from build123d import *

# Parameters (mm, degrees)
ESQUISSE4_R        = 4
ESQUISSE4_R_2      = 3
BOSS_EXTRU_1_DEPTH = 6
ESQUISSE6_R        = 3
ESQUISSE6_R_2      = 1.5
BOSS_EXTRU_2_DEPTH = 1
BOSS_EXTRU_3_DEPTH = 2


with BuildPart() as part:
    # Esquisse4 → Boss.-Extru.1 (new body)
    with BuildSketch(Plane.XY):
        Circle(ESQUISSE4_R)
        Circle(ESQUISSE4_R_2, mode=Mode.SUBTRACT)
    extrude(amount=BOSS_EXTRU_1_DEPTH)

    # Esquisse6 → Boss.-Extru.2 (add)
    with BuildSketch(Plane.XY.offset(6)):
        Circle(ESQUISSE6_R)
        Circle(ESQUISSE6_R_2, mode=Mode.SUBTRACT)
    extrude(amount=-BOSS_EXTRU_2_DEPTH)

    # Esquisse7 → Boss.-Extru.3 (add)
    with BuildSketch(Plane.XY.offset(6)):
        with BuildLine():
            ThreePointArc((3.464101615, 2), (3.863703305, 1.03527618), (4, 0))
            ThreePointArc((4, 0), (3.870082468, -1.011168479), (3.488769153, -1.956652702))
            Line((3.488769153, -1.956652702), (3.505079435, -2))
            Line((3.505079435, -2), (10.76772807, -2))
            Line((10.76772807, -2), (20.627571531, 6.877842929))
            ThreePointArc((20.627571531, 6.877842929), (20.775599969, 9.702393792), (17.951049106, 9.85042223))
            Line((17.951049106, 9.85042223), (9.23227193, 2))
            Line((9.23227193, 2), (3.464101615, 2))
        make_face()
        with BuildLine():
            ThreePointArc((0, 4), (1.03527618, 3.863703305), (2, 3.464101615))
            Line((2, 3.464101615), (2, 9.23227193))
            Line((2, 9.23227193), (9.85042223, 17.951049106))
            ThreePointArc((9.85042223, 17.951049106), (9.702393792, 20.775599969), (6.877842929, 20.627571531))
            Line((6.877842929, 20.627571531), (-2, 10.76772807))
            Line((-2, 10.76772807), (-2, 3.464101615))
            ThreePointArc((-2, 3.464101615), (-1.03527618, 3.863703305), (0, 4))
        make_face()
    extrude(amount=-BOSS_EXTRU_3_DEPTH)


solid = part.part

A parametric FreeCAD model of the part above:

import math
import FreeCAD as App
import Part
import Sketcher

V = App.Vector
Q = App.Units.Quantity

doc = App.newDocument("Part")
body = doc.addObject("PartDesign::Body", "Body")

sketch1 = body.newObject("Sketcher::SketchObject", "Sketch")
sketch1.AttachmentSupport = (doc.getObject("XY_Plane"), [""])
sketch1.MapMode = "FlatFace"
sketch1.addGeometry(Part.Circle(V(0, 0, 0), V(0, 0, 1), 4), False)
sketch1.addGeometry(Part.Circle(V(0, 0, 0), V(0, 0, 1), 3), False)
sketch1.addConstraint(Sketcher.Constraint("Coincident", 0, 3, -1, 1))
sketch1.addConstraint(Sketcher.Constraint("Coincident", 1, 3, -1, 1))
sketch1.addConstraint(Sketcher.Constraint("Diameter", 0, Q("8 mm")))
sketch1.addConstraint(Sketcher.Constraint("Diameter", 1, Q("6 mm")))
pad1 = body.newObject("PartDesign::Pad", "Pad")
pad1.Profile = sketch1
pad1.Length = 6

sketch2 = body.newObject("Sketcher::SketchObject", "Sketch001")
sketch2.AttachmentSupport = (doc.getObject("XY_Plane"), [""])
sketch2.MapMode = "FlatFace"
sketch2.AttachmentOffset = App.Placement(V(0, 0, 6), App.Rotation())
sketch2.addGeometry(Part.Circle(V(0, 0, 0), V(0, 0, 1), 3), False)
sketch2.addGeometry(Part.Circle(V(0, 0, 0), V(0, 0, 1), 1.5), False)
sketch2.addConstraint(Sketcher.Constraint("Coincident", 0, 3, -1, 1))
sketch2.addConstraint(Sketcher.Constraint("Coincident", 1, 3, -1, 1))
sketch2.addConstraint(Sketcher.Constraint("Diameter", 0, Q("6 mm")))
sketch2.addConstraint(Sketcher.Constraint("Diameter", 1, Q("3 mm")))
pad2 = body.newObject("PartDesign::Pad", "Pad001")
pad2.Profile = sketch2
pad2.Length = 1
pad2.Reversed = True

sketch3 = body.newObject("Sketcher::SketchObject", "Sketch002")
sketch3.AttachmentSupport = (doc.getObject("XY_Plane"), [""])
sketch3.MapMode = "FlatFace"
sketch3.AttachmentOffset = App.Placement(V(0, 0, 6), App.Rotation())
sketch3.addGeometry(Part.ArcOfCircle(Part.Circle(V(0, 0, 0), V(0, 0, 1), 4), math.radians(0), math.radians(30)), False)
sketch3.addGeometry(Part.ArcOfCircle(Part.Circle(V(0, 0, 0), V(0, 0, 1), 4), math.radians(-29), math.radians(0)), False)
sketch3.addGeometry(Part.LineSegment(V(3.489, -1.957, 0), V(3.505, -2, 0)), False)
sketch3.addGeometry(Part.LineSegment(V(3.505, -2, 0), V(10.768, -2, 0)), False)
sketch3.addGeometry(Part.LineSegment(V(10.768, -2, 0), V(20.628, 6.878, 0)), False)
sketch3.addGeometry(Part.ArcOfCircle(Part.Circle(V(19.289, 8.364, 0), V(0, 0, 1), 2), math.radians(-48), math.radians(132)), False)
sketch3.addGeometry(Part.LineSegment(V(17.951, 9.85, 0), V(9.232, 2, 0)), False)
sketch3.addGeometry(Part.LineSegment(V(9.232, 2, 0), V(3.464, 2, 0)), False)
sketch3.addGeometry(Part.ArcOfCircle(Part.Circle(V(0, 0, 0), V(0, 0, 1), 4), math.radians(60), math.radians(90)), False)
sketch3.addGeometry(Part.LineSegment(V(2, 3.464, 0), V(2, 9.232, 0)), False)
sketch3.addGeometry(Part.LineSegment(V(2, 9.232, 0), V(9.85, 17.951, 0)), False)
sketch3.addGeometry(Part.ArcOfCircle(Part.Circle(V(8.364, 19.289, 0), V(0, 0, 1), 2), math.radians(-42), math.radians(138)), False)
sketch3.addGeometry(Part.LineSegment(V(6.878, 20.628, 0), V(-2, 10.768, 0)), False)
sketch3.addGeometry(Part.LineSegment(V(-2, 10.768, 0), V(-2, 3.464, 0)), False)
sketch3.addGeometry(Part.ArcOfCircle(Part.Circle(V(0, 0, 0), V(0, 0, 1), 4), math.radians(90), math.radians(120)), False)
sketch3.addConstraint(Sketcher.Constraint("Tangent", 0, 1, 1, 2))
sketch3.addConstraint(Sketcher.Constraint("Coincident", 1, 1, 2, 1))
sketch3.addConstraint(Sketcher.Constraint("Coincident", 2, 2, 3, 1))
sketch3.addConstraint(Sketcher.Constraint("Coincident", 3, 2, 4, 1))
sketch3.addConstraint(Sketcher.Constraint("Tangent", 4, 2, 5, 1))
sketch3.addConstraint(Sketcher.Constraint("Tangent", 5, 2, 6, 1))
sketch3.addConstraint(Sketcher.Constraint("Coincident", 6, 2, 7, 1))
sketch3.addConstraint(Sketcher.Constraint("Coincident", 7, 2, 0, 2))
sketch3.addConstraint(Sketcher.Constraint("Coincident", 8, 1, 9, 1))
sketch3.addConstraint(Sketcher.Constraint("Coincident", 9, 2, 10, 1))
sketch3.addConstraint(Sketcher.Constraint("Tangent", 10, 2, 11, 1))
sketch3.addConstraint(Sketcher.Constraint("Tangent", 11, 2, 12, 1))
sketch3.addConstraint(Sketcher.Constraint("Coincident", 12, 2, 13, 1))
sketch3.addConstraint(Sketcher.Constraint("Coincident", 13, 2, 14, 2))
sketch3.addConstraint(Sketcher.Constraint("Tangent", 14, 1, 8, 2))
sketch3.addConstraint(Sketcher.Constraint("Horizontal", 3))
sketch3.addConstraint(Sketcher.Constraint("Horizontal", 7))
sketch3.addConstraint(Sketcher.Constraint("Vertical", 9))
sketch3.addConstraint(Sketcher.Constraint("Vertical", 13))
sketch3.addConstraint(Sketcher.Constraint("Coincident", 0, 3, -1, 1))
sketch3.addConstraint(Sketcher.Constraint("Coincident", 8, 3, -1, 1))
sketch3.addConstraint(Sketcher.Constraint("Equal", 0, 1))
sketch3.addConstraint(Sketcher.Constraint("Equal", 1, 8))
sketch3.addConstraint(Sketcher.Constraint("Equal", 5, 11))
sketch3.addConstraint(Sketcher.Constraint("Equal", 8, 14))
sketch3.addConstraint(Sketcher.Constraint("PointOnObject", 0, 1, -1))
sketch3.addConstraint(Sketcher.Constraint("PointOnObject", 14, 1, -2))
sketch3.addConstraint(Sketcher.Constraint("Parallel", 4, 6))
sketch3.addConstraint(Sketcher.Constraint("Parallel", 10, 12))
sketch3.addConstraint(Sketcher.Constraint("Horizontal", 8, 1, 13, 2))
sketch3.addConstraint(Sketcher.Constraint("Equal", 7, 9))
sketch3.addConstraint(Sketcher.Constraint("Equal", 6, 10))
sketch3.addConstraint(Sketcher.Constraint("Equal", 4, 12))
sketch3.addConstraint(Sketcher.Constraint("Radius", 0, Q("4 mm")))
sketch3.addConstraint(Sketcher.Constraint("Radius", 5, Q("2 mm")))
sketch3.addConstraint(Sketcher.Constraint("Angle", 4, Q("42 deg")))
sketch3.addConstraint(Sketcher.Constraint("Angle", 10, Q("48 deg")))
sketch3.addConstraint(Sketcher.Constraint("DistanceY", 2, 2, -1, 1, Q("2 mm")))
sketch3.addConstraint(Sketcher.Constraint("DistanceY", -1, 1, 6, 2, Q("2 mm")))
sketch3.addConstraint(Sketcher.Constraint("DistanceX", 3, 1, 3, 2, Q("7.262649 mm")))
sketch3.addConstraint(Sketcher.Constraint("DistanceX", 7, 2, 7, 1, Q("5.76817 mm")))
sketch3.addConstraint(Sketcher.Constraint("DistanceY", 9, 2, 11, 2, Q("11.3953 mm")))
sketch3.addConstraint(Sketcher.Constraint("DistanceX", -1, 1, 1, 1, Q("3.488769 mm")))
pad3 = body.newObject("PartDesign::Pad", "Pad002")
pad3.Profile = sketch3
pad3.Length = 2
pad3.Reversed = True

doc.recompute()
